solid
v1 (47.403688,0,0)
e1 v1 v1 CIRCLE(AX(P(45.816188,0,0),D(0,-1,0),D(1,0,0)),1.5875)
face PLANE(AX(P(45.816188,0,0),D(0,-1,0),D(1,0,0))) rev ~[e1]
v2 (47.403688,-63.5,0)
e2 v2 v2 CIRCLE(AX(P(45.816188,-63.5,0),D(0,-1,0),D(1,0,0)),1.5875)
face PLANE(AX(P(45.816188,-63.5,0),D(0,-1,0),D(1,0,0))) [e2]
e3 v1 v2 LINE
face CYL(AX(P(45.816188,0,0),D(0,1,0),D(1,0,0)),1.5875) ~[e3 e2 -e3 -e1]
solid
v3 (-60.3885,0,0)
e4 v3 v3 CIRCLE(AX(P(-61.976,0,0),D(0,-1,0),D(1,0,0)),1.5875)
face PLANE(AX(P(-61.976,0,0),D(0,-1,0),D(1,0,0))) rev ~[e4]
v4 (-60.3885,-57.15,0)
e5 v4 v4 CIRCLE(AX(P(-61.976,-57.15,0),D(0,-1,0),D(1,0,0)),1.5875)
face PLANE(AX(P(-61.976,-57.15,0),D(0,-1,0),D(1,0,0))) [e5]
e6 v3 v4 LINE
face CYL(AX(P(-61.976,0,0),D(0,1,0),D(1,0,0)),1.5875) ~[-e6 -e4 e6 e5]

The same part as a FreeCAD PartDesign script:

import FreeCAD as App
import Part
import Sketcher

V = App.Vector
Q = App.Units.Quantity

doc = App.newDocument("Part")
body = doc.addObject("PartDesign::Body", "Body")

# Sketch on XZ plane
sketch1 = body.newObject("Sketcher::SketchObject", "Sketch")
sketch1.AttachmentSupport = (doc.getObject("XZ_Plane"), [""])
sketch1.MapMode = "FlatFace"
sketch1.addGeometry(Part.Circle(V(-62, 0, 0), V(0, 0, 1), 1.6), False)
sketch1.addConstraint(Sketcher.Constraint("PointOnObject", 0, 3, -1))
sketch1.addConstraint(Sketcher.Constraint("Diameter", 0, Q("0.125 in")))
sketch1.addConstraint(Sketcher.Constraint("DistanceX", 0, 3, -1, 1, Q("2.44 in")))
pad1 = body.newObject("PartDesign::Pad", "Pad")
pad1.Profile = sketch1
pad1.Length = Q("2.25 in")
body2 = doc.addObject("PartDesign::Body", "Body001")

# Sketch on XZ plane
sketch2 = body2.newObject("Sketcher::SketchObject", "Sketch001")
sketch2.AttachmentSupport = (doc.getObject("XZ_Plane001"), [""])
sketch2.MapMode = "FlatFace"
sketch2.addGeometry(Part.Circle(V(45.8, 0, 0), V(0, 0, 1), 1.6), False)
sketch2.addConstraint(Sketcher.Constraint("PointOnObject", 0, 3, -1))
sketch2.addConstraint(Sketcher.Constraint("Diameter", 0, Q("0.125 in")))
sketch2.addConstraint(Sketcher.Constraint("DistanceX", -1, 1, 0, 3, Q("45.816188 mm")))
pad2 = body2.newObject("PartDesign::Pad", "Pad001")
pad2.Profile = sketch2
pad2.Length = Q("2.5 in")

doc.recompute()
